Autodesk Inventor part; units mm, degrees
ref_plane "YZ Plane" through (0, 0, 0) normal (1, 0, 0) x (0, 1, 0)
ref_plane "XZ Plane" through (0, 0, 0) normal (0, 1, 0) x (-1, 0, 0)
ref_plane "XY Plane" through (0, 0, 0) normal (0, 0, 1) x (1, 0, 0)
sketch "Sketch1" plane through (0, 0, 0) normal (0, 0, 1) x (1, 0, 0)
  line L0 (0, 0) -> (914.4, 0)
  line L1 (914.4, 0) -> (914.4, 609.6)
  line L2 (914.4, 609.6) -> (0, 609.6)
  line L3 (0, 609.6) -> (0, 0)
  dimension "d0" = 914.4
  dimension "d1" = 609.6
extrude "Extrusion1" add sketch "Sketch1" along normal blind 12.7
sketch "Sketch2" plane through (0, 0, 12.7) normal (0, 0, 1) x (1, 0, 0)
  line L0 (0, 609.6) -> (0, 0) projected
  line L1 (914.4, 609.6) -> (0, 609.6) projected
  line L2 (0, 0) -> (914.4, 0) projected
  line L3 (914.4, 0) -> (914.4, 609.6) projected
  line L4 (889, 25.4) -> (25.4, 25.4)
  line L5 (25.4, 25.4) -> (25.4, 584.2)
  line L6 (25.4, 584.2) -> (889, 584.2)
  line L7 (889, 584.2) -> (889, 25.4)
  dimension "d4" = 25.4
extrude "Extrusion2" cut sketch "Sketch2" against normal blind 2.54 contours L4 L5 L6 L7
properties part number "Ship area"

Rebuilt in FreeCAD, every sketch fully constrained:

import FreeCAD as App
import Part
import Sketcher
Q = App.Units.Quantity


def add_polygon(sketch, points):
    """Adds a closed chain of lines whose ends are joined by coincident constraints."""
    first, n = sketch.GeometryCount, len(points)
    for a, b in zip(points, points[1:] + points[:1]):
        sketch.addGeometry(Part.LineSegment(App.Vector(*a, 0), App.Vector(*b, 0)), False)
    for i in range(n):
        sketch.addConstraint(Sketcher.Constraint("Coincident", first + i, 2, first + (i + 1) % n, 1))

doc = App.newDocument("Part")
body = doc.addObject("PartDesign::Body", "Body")

# Sketch on XY plane
sketch1 = doc.addObject("Sketcher::SketchObject", "Sketch")
body.addObject(sketch1)
sketch1.AttachmentSupport = (doc.XY_Plane, [""])
sketch1.MapMode = "FlatFace"
add_polygon(sketch1, [(0, 610), (0, 0), (914, 0), (914, 610)])  # lines 0-3
sketch1.addConstraint(Sketcher.Constraint("Vertical", 0))
sketch1.addConstraint(Sketcher.Constraint("Horizontal", 1))
sketch1.addConstraint(Sketcher.Constraint("Vertical", 2))
sketch1.addConstraint(Sketcher.Constraint("Horizontal", 3))
sketch1.addConstraint(Sketcher.Constraint("Coincident", 0, 2, -1, 1))
sketch1.addConstraint(Sketcher.Constraint("DistanceX", 1, 1, 1, 2, Q("36 in")))
sketch1.addConstraint(Sketcher.Constraint("DistanceY", 0, 2, 0, 1, Q("24 in")))
pad1 = doc.addObject("PartDesign::Pad", "Pad")
body.addObject(pad1)
pad1.Profile = sketch1
pad1.Length = Q("0.5 in")

# Sketch on XY plane
sketch2 = doc.addObject("Sketcher::SketchObject", "Sketch001")
body.addObject(sketch2)
sketch2.AttachmentSupport = (doc.XY_Plane, [""])
sketch2.MapMode = "FlatFace"
sketch2.AttachmentOffset = App.Placement(App.Vector(0, 0, 0.5 * 25.4), App.Rotation())
add_polygon(sketch2, [(25, 25), (889, 25), (889, 584), (25, 584)])  # lines 0-3
sketch2.addConstraint(Sketcher.Constraint("Horizontal", 0))
sketch2.addConstraint(Sketcher.Constraint("Vertical", 1))
sketch2.addConstraint(Sketcher.Constraint("Horizontal", 2))
sketch2.addConstraint(Sketcher.Constraint("Vertical", 3))
sketch2.addConstraint(Sketcher.Constraint("DistanceY", -1, 1, 0, 2, Q("1 in")))
sketch2.addConstraint(Sketcher.Constraint("DistanceX", -1, 1, 2, 2, Q("1 in")))
sketch2.addConstraint(Sketcher.Constraint("DistanceX", 0, 1, 0, 2, Q("34 in")))
sketch2.addConstraint(Sketcher.Constraint("DistanceY", 1, 1, 1, 2, Q("22 in")))
pocket1 = doc.addObject("PartDesign::Pocket", "Pocket")
body.addObject(pocket1)
pocket1.Profile = sketch2
pocket1.Length = Q("0.1 in")

doc.recompute()
